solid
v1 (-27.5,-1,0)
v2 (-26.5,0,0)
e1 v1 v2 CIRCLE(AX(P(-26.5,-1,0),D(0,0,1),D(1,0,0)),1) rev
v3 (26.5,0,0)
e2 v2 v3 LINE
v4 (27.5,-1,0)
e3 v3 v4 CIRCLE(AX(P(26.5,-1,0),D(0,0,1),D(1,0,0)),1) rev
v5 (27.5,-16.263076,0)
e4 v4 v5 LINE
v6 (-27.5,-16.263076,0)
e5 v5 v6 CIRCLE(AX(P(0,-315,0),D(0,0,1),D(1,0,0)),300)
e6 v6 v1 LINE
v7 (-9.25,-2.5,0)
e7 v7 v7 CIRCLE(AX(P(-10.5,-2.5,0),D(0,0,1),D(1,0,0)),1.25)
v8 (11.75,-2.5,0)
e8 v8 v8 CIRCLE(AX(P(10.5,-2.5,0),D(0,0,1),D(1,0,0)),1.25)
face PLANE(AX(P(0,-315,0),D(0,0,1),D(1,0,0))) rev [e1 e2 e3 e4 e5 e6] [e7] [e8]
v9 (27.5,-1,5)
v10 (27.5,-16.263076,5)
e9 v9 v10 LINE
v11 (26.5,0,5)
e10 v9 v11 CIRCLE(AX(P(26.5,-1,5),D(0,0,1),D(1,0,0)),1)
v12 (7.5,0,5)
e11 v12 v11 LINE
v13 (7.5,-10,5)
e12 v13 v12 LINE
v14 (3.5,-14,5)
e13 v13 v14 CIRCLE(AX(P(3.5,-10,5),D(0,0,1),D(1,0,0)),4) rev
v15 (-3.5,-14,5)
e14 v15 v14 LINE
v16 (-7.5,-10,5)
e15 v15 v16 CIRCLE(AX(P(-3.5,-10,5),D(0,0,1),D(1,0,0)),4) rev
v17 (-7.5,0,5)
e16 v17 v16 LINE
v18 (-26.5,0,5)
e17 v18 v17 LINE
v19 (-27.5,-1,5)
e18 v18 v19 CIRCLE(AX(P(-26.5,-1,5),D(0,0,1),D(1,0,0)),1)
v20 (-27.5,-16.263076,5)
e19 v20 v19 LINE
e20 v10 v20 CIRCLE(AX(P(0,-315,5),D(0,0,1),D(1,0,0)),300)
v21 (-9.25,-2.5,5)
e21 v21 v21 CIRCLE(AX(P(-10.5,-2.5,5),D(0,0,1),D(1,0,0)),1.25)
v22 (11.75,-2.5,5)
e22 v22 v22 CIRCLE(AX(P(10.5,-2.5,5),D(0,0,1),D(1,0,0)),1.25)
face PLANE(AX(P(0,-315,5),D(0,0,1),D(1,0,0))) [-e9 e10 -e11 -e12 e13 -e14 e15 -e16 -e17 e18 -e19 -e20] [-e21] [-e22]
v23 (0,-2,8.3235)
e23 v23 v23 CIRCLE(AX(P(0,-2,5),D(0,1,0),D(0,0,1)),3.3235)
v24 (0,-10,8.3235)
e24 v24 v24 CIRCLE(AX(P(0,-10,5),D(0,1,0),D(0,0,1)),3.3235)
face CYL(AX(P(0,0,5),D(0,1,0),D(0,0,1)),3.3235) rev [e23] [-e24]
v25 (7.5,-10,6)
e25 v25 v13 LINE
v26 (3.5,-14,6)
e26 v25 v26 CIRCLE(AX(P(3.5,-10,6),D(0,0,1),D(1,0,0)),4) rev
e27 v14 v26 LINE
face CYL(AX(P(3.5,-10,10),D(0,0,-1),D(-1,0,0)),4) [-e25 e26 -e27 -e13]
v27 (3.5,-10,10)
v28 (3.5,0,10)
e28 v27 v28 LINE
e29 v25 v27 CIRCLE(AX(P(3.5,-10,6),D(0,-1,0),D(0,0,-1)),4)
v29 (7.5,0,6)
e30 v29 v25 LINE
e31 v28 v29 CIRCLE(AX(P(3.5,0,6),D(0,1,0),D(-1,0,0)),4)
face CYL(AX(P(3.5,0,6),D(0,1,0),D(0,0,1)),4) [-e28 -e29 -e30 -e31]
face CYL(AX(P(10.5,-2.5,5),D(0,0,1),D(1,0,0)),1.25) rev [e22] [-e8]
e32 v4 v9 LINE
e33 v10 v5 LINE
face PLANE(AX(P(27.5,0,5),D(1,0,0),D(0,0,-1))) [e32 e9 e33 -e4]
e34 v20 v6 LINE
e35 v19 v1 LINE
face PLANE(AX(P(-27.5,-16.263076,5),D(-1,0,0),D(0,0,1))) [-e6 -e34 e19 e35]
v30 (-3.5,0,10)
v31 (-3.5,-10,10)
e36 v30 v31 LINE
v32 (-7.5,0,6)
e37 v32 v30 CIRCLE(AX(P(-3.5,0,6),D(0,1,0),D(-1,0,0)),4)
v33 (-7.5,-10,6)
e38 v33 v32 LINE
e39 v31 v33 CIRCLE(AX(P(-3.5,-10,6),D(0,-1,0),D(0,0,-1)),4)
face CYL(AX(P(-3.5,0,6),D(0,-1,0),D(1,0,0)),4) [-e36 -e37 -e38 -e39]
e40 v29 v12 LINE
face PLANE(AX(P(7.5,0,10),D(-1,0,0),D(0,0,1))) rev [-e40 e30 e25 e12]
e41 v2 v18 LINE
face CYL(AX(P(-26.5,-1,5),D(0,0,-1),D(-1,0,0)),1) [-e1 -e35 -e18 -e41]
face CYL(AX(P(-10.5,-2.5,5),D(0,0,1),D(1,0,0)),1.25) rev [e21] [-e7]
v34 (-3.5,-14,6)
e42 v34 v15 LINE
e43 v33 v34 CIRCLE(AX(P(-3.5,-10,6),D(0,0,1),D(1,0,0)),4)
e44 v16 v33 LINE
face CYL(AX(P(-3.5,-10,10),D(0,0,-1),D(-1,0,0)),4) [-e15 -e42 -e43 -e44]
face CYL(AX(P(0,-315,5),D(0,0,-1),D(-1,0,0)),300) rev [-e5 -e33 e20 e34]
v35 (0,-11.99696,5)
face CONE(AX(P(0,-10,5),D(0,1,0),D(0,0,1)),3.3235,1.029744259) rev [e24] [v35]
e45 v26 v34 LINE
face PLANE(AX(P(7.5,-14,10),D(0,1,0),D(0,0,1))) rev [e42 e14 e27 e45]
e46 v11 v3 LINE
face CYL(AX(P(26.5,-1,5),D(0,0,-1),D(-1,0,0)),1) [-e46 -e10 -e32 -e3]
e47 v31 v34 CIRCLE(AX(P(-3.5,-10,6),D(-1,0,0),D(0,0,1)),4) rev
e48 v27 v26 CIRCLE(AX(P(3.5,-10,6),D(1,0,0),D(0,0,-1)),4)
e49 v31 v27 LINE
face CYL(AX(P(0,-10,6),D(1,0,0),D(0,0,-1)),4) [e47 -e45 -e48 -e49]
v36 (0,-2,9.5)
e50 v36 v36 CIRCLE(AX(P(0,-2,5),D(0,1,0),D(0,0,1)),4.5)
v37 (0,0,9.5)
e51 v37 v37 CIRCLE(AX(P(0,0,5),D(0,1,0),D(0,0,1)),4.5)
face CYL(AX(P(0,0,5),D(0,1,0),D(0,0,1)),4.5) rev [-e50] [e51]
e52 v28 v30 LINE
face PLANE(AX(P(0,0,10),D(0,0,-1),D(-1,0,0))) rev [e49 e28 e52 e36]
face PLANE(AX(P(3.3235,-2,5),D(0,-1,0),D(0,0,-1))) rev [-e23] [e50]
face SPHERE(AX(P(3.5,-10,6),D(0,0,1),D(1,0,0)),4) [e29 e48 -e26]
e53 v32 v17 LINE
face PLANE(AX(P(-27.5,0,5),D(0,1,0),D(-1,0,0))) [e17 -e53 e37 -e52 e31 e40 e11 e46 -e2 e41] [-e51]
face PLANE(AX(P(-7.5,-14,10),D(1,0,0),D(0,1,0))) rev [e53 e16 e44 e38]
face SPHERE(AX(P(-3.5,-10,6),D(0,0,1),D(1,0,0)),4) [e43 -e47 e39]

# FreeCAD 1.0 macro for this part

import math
import FreeCAD as App
import Part
import Sketcher


def edges_at(feature, points):
    """Names of the edges that pass closest to the given points."""
    edges = feature.Shape.Edges
    near = lambda p: min(range(len(edges)), key=lambda i: edges[i].distToShape(Part.Vertex(*p))[0])
    return sorted({f"Edge{near(p) + 1}" for p in points})

doc = App.newDocument("Part")
body = doc.addObject("PartDesign::Body", "Body")

sketch1 = body.newObject("Sketcher::SketchObject", "Sketch")
sketch1.AttachmentSupport = (doc.getObject("XY_Plane"), [""])
sketch1.MapMode = "FlatFace"
sketch1.addGeometry(Part.LineSegment(App.Vector(-28, -16, 0), App.Vector(-28, 0, 0)), False)
sketch1.addGeometry(Part.LineSegment(App.Vector(-28, 0, 0), App.Vector(28, 0, 0)), False)
sketch1.addGeometry(Part.LineSegment(App.Vector(28, 0, 0), App.Vector(28, -16, 0)), False)
sketch1.addGeometry(Part.ArcOfCircle(Part.Circle(App.Vector(0, -315, 0), App.Vector(0, 0, 1), 300), math.radians(84.74), math.radians(95.26)), False)
sketch1.addConstraint(Sketcher.Constraint("Coincident", 0, 2, 1, 1))
sketch1.addConstraint(Sketcher.Constraint("Coincident", 1, 2, 2, 1))
sketch1.addConstraint(Sketcher.Constraint("Coincident", 2, 2, 3, 1))
sketch1.addConstraint(Sketcher.Constraint("Coincident", 3, 2, 0, 1))
sketch1.addConstraint(Sketcher.Constraint("Vertical", 0))
sketch1.addConstraint(Sketcher.Constraint("Horizontal", 1))
sketch1.addConstraint(Sketcher.Constraint("Vertical", 2))
sketch1.addConstraint(Sketcher.Constraint("Symmetric", 0, 2, 1, 2, -1, 1))
sketch1.addConstraint(Sketcher.Constraint("PointOnObject", 3, 3, -2))
sketch1.addConstraint(Sketcher.Constraint("Radius", 3, 300.0))
sketch1.addConstraint(Sketcher.Constraint("DistanceX", 1, 1, 1, 2, 55.0))
sketch1.addConstraint(Sketcher.Constraint("DistanceY", 3, 3, -1, 1, 315.0))
pad1 = body.newObject("PartDesign::Pad", "Pad")
pad1.Profile = sketch1
pad1.Length = 5

sketch2 = body.newObject("Sketcher::SketchObject", "Sketch001")
sketch2.AttachmentSupport = (doc.getObject("XY_Plane"), [""])
sketch2.MapMode = "FlatFace"
sketch2.AttachmentOffset = App.Placement(App.Vector(0, 0, 5), App.Rotation())
sketch2.addGeometry(Part.LineSegment(App.Vector(-8, 0, 0), App.Vector(-8, -14, 0)), False)
sketch2.addGeometry(Part.LineSegment(App.Vector(-8, -14, 0), App.Vector(8, -14, 0)), False)
sketch2.addGeometry(Part.LineSegment(App.Vector(8, -14, 0), App.Vector(8, 0, 0)), False)
sketch2.addGeometry(Part.LineSegment(App.Vector(8, 0, 0), App.Vector(-8, 0, 0)), False)
sketch2.addConstraint(Sketcher.Constraint("Coincident", 0, 2, 1, 1))
sketch2.addConstraint(Sketcher.Constraint("Coincident", 1, 2, 2, 1))
sketch2.addConstraint(Sketcher.Constraint("Coincident", 2, 2, 3, 1))
sketch2.addConstraint(Sketcher.Constraint("Coincident", 3, 2, 0, 1))
sketch2.addConstraint(Sketcher.Constraint("Vertical", 0))
sketch2.addConstraint(Sketcher.Constraint("Horizontal", 1))
sketch2.addConstraint(Sketcher.Constraint("Vertical", 2))
sketch2.addConstraint(Sketcher.Constraint("Horizontal", 3))
sketch2.addConstraint(Sketcher.Constraint("Symmetric", 2, 2, 3, 2, -1, 1))
sketch2.addConstraint(Sketcher.Constraint("DistanceX", 1, 1, 1, 2, 15.0))
sketch2.addConstraint(Sketcher.Constraint("DistanceY", 0, 2, 0, 1, 14.0))
pad2 = body.newObject("PartDesign::Pad", "Pad001")
pad2.Profile = sketch2
pad2.Length = 5

sketch3 = body.newObject("Sketcher::SketchObject", "Sketch002")
sketch3.AttachmentSupport = (doc.getObject("XZ_Plane"), [""])
sketch3.MapMode = "FlatFace"
sketch3.addGeometry(Part.Circle(App.Vector(0, 5, 0), App.Vector(0, 0, 1), 3.3), False)
sketch3.addConstraint(Sketcher.Constraint("PointOnObject", 0, 3, -2))
sketch3.addConstraint(Sketcher.Constraint("Diameter", 0, 6.647))
sketch3.addConstraint(Sketcher.Constraint("DistanceY", -1, 1, 0, 3, 5.0))
doc.recompute()
hole = body.newObject("PartDesign::Hole", "Hole")
hole.Profile = sketch3
hole.ThreadType = "None"
hole.Diameter = 6.647
hole.DepthType = "Dimension"
hole.Depth = 10
hole.DrillPoint = "Angled"
hole.DrillPointAngle = 118
hole.HoleCutType = "Counterbore"
hole.HoleCutDiameter = 9
hole.HoleCutDepth = 2
hole.Reversed = True
doc.recompute()

fillet = body.newObject("PartDesign::Fillet", "Fillet")
fillet.Base = (hole, edges_at(hole, [(27.5, 0, 2.5), (-27.5, 0, 2.5)]))
fillet.Radius = 1
doc.recompute()

fillet2 = body.newObject("PartDesign::Fillet", "Fillet001")
fillet2.Base = (fillet, edges_at(fillet, [
    (7.5, -14, 7.5),
    (7.5, -7, 10),
    (-7.5, -14, 7.5),
    (0, -14, 10),
    (-7.5, -7, 10),
]))
fillet2.Radius = 4

sketch4 = body.newObject("Sketcher::SketchObject", "Sketch003")
sketch4.AttachmentSupport = (doc.getObject("XY_Plane"), [""])
sketch4.MapMode = "FlatFace"
sketch4.AttachmentOffset = App.Placement(App.Vector(0, 0, 5), App.Rotation())
sketch4.addGeometry(Part.Circle(App.Vector(-10.5, -2.5, 0), App.Vector(0, 0, 1), 1.2), False)
sketch4.addGeometry(Part.Circle(App.Vector(10.5, -2.5, 0), App.Vector(0, 0, 1), 1.2), False)
sketch4.addConstraint(Sketcher.Constraint("Equal", 0, 1))
sketch4.addConstraint(Sketcher.Constraint("Symmetric", 0, 3, 1, 3, -2))
sketch4.addConstraint(Sketcher.Constraint("Diameter", 0, 2.5))
sketch4.addConstraint(Sketcher.Constraint("DistanceX", 0, 3, 1, 3, 21.0))
sketch4.addConstraint(Sketcher.Constraint("DistanceY", 0, 3, -1, 1, 2.5))
doc.recompute()
hole2 = body.newObject("PartDesign::Hole", "Hole001")
hole2.Profile = sketch4
hole2.ThreadType = "None"
hole2.Diameter = 2.5
hole2.DepthType = "ThroughAll"

doc.recompute()
